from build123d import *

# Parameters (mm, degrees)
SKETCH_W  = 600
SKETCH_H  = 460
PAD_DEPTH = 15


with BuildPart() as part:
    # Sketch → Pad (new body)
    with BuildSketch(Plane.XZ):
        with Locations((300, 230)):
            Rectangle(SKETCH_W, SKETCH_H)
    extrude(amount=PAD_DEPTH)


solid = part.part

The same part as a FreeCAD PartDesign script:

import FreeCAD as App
import Part
import Sketcher
Q = App.Units.Quantity


def add_polygon(sketch, points):
    """Adds a closed chain of lines whose ends are joined by coincident constraints."""
    first, n = sketch.GeometryCount, len(points)
    for a, b in zip(points, points[1:] + points[:1]):
        sketch.addGeometry(Part.LineSegment(App.Vector(*a, 0), App.Vector(*b, 0)), False)
    for i in range(n):
        sketch.addConstraint(Sketcher.Constraint("Coincident", first + i, 2, first + (i + 1) % n, 1))

doc = App.newDocument("Part")
body = doc.addObject("PartDesign::Body", "Body")

sketch1 = body.newObject("Sketcher::SketchObject", "Sketch")
sketch1.AttachmentSupport = (doc.getObject("XZ_Plane"), [""])
sketch1.MapMode = "FlatFace"
add_polygon(sketch1, [(0, 460), (0, 0), (600, 0), (600, 460)])
sketch1.addConstraint(Sketcher.Constraint("Vertical", 0))
sketch1.addConstraint(Sketcher.Constraint("Horizontal", 1))
sketch1.addConstraint(Sketcher.Constraint("Vertical", 2))
sketch1.addConstraint(Sketcher.Constraint("Horizontal", 3))
sketch1.addConstraint(Sketcher.Constraint("Coincident", 0, 2, -1, 1))
sketch1.addConstraint(Sketcher.Constraint("DistanceX", 1, 1, 1, 2, Q("600 mm")))
sketch1.addConstraint(Sketcher.Constraint("DistanceY", 0, 2, 0, 1, Q("460 mm")))
pad1 = body.newObject("PartDesign::Pad", "Pad")
pad1.Profile = sketch1
pad1.Length = 15

doc.recompute()
